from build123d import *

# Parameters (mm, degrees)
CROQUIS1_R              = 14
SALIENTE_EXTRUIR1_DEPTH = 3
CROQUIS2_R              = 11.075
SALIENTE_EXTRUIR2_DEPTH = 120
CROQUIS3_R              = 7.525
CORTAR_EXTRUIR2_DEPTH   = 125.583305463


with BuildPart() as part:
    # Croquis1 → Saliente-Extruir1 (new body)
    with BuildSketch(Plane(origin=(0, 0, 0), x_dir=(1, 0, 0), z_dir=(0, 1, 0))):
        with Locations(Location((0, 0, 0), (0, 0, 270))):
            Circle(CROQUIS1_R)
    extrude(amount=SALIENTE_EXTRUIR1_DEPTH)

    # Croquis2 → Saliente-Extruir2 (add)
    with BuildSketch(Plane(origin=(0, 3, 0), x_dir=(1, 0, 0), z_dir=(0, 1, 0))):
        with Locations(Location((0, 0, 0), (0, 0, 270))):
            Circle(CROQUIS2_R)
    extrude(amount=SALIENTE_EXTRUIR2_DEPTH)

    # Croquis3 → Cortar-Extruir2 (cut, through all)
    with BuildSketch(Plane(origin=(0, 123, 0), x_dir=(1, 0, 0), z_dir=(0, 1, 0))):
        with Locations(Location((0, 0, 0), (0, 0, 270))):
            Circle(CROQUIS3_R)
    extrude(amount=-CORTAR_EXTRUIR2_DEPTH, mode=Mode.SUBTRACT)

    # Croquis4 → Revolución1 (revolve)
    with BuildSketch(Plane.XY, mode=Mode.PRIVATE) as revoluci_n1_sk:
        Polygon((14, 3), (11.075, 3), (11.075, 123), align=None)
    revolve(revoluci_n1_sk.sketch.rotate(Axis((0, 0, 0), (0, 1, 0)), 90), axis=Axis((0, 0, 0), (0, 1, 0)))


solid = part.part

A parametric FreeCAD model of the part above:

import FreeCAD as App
import Part
import Sketcher

V = App.Vector


def add_polygon(sketch, points):
    """Adds a closed chain of lines whose ends are joined by coincident constraints."""
    first, n = sketch.GeometryCount, len(points)
    for a, b in zip(points, points[1:] + points[:1]):
        sketch.addGeometry(Part.LineSegment(App.Vector(*a, 0), App.Vector(*b, 0)), False)
    for i in range(n):
        sketch.addConstraint(Sketcher.Constraint("Coincident", first + i, 2, first + (i + 1) % n, 1))

doc = App.newDocument("Part")
body = doc.addObject("PartDesign::Body", "Body")

sketch1 = doc.addObject("Sketcher::SketchObject", "Sketch")
body.addObject(sketch1)
sketch1.AttachmentSupport = (doc.XZ_Plane, [""])
sketch1.MapMode = "FlatFace"
sketch1.addGeometry(Part.Circle(V(0, 0, 0), V(0, 0, 1), 14), False)
sketch1.addConstraint([
    Sketcher.Constraint("Coincident", 0, 3, -1, 1),
    Sketcher.Constraint("Diameter", 0, 28.0),
])
pad1 = doc.addObject("PartDesign::Pad", "Pad")
body.addObject(pad1)
pad1.Profile = sketch1
pad1.Length = 3
pad1.Reversed = True

sketch2 = doc.addObject("Sketcher::SketchObject", "Sketch001")
body.addObject(sketch2)
sketch2.AttachmentSupport = (doc.XZ_Plane, [""])
sketch2.MapMode = "FlatFace"
sketch2.AttachmentOffset = App.Placement(V(0, 0, -3), App.Rotation())
sketch2.addGeometry(Part.Circle(V(0, 0, 0), V(0, 0, 1), 11), False)
sketch2.addConstraint([
    Sketcher.Constraint("Coincident", 0, 3, -1, 1),
    Sketcher.Constraint("Diameter", 0, 22.15),
])
pad2 = doc.addObject("PartDesign::Pad", "Pad001")
body.addObject(pad2)
pad2.Profile = sketch2
pad2.Length = 120
pad2.Reversed = True

sketch3 = doc.addObject("Sketcher::SketchObject", "Sketch002")
body.addObject(sketch3)
sketch3.AttachmentSupport = (doc.XZ_Plane, [""])
sketch3.MapMode = "FlatFace"
sketch3.AttachmentOffset = App.Placement(V(0, 0, -123), App.Rotation())
sketch3.addGeometry(Part.Circle(V(0, 0, 0), V(0, 0, 1), 8), False)
sketch3.addConstraint([
    Sketcher.Constraint("Coincident", 0, 3, -1, 1),
    Sketcher.Constraint("Diameter", 0, 15.05),
])
pocket1 = doc.addObject("PartDesign::Pocket", "Pocket")
body.addObject(pocket1)
pocket1.Profile = sketch3
pocket1.Type = "ThroughAll"
pocket1.Reversed = True

sketch4 = doc.addObject("Sketcher::SketchObject", "Sketch003")
body.addObject(sketch4)
sketch4.AttachmentSupport = (doc.XY_Plane, [""])
sketch4.MapMode = "FlatFace"
add_polygon(sketch4, [(11.1, 3), (14, 3), (11.1, 123)])
sketch4.addConstraint([
    Sketcher.Constraint("Horizontal", 0),
    Sketcher.Constraint("Vertical", 2),
    Sketcher.Constraint("DistanceY", 2, 2, 2, 1, 120.0),
    Sketcher.Constraint("DistanceX", -1, 1, 0, 2, 14.0),
    Sketcher.Constraint("DistanceY", -1, 1, 0, 2, 3.0),
    Sketcher.Constraint("DistanceX", 0, 1, 0, 2, 2.925),
])
revolution = doc.addObject("PartDesign::Revolution", "Revolution")
body.addObject(revolution)
revolution.Profile = sketch4
revolution.ReferenceAxis = (sketch4, ["V_Axis"])
revolution.Angle = 360

doc.recompute()
